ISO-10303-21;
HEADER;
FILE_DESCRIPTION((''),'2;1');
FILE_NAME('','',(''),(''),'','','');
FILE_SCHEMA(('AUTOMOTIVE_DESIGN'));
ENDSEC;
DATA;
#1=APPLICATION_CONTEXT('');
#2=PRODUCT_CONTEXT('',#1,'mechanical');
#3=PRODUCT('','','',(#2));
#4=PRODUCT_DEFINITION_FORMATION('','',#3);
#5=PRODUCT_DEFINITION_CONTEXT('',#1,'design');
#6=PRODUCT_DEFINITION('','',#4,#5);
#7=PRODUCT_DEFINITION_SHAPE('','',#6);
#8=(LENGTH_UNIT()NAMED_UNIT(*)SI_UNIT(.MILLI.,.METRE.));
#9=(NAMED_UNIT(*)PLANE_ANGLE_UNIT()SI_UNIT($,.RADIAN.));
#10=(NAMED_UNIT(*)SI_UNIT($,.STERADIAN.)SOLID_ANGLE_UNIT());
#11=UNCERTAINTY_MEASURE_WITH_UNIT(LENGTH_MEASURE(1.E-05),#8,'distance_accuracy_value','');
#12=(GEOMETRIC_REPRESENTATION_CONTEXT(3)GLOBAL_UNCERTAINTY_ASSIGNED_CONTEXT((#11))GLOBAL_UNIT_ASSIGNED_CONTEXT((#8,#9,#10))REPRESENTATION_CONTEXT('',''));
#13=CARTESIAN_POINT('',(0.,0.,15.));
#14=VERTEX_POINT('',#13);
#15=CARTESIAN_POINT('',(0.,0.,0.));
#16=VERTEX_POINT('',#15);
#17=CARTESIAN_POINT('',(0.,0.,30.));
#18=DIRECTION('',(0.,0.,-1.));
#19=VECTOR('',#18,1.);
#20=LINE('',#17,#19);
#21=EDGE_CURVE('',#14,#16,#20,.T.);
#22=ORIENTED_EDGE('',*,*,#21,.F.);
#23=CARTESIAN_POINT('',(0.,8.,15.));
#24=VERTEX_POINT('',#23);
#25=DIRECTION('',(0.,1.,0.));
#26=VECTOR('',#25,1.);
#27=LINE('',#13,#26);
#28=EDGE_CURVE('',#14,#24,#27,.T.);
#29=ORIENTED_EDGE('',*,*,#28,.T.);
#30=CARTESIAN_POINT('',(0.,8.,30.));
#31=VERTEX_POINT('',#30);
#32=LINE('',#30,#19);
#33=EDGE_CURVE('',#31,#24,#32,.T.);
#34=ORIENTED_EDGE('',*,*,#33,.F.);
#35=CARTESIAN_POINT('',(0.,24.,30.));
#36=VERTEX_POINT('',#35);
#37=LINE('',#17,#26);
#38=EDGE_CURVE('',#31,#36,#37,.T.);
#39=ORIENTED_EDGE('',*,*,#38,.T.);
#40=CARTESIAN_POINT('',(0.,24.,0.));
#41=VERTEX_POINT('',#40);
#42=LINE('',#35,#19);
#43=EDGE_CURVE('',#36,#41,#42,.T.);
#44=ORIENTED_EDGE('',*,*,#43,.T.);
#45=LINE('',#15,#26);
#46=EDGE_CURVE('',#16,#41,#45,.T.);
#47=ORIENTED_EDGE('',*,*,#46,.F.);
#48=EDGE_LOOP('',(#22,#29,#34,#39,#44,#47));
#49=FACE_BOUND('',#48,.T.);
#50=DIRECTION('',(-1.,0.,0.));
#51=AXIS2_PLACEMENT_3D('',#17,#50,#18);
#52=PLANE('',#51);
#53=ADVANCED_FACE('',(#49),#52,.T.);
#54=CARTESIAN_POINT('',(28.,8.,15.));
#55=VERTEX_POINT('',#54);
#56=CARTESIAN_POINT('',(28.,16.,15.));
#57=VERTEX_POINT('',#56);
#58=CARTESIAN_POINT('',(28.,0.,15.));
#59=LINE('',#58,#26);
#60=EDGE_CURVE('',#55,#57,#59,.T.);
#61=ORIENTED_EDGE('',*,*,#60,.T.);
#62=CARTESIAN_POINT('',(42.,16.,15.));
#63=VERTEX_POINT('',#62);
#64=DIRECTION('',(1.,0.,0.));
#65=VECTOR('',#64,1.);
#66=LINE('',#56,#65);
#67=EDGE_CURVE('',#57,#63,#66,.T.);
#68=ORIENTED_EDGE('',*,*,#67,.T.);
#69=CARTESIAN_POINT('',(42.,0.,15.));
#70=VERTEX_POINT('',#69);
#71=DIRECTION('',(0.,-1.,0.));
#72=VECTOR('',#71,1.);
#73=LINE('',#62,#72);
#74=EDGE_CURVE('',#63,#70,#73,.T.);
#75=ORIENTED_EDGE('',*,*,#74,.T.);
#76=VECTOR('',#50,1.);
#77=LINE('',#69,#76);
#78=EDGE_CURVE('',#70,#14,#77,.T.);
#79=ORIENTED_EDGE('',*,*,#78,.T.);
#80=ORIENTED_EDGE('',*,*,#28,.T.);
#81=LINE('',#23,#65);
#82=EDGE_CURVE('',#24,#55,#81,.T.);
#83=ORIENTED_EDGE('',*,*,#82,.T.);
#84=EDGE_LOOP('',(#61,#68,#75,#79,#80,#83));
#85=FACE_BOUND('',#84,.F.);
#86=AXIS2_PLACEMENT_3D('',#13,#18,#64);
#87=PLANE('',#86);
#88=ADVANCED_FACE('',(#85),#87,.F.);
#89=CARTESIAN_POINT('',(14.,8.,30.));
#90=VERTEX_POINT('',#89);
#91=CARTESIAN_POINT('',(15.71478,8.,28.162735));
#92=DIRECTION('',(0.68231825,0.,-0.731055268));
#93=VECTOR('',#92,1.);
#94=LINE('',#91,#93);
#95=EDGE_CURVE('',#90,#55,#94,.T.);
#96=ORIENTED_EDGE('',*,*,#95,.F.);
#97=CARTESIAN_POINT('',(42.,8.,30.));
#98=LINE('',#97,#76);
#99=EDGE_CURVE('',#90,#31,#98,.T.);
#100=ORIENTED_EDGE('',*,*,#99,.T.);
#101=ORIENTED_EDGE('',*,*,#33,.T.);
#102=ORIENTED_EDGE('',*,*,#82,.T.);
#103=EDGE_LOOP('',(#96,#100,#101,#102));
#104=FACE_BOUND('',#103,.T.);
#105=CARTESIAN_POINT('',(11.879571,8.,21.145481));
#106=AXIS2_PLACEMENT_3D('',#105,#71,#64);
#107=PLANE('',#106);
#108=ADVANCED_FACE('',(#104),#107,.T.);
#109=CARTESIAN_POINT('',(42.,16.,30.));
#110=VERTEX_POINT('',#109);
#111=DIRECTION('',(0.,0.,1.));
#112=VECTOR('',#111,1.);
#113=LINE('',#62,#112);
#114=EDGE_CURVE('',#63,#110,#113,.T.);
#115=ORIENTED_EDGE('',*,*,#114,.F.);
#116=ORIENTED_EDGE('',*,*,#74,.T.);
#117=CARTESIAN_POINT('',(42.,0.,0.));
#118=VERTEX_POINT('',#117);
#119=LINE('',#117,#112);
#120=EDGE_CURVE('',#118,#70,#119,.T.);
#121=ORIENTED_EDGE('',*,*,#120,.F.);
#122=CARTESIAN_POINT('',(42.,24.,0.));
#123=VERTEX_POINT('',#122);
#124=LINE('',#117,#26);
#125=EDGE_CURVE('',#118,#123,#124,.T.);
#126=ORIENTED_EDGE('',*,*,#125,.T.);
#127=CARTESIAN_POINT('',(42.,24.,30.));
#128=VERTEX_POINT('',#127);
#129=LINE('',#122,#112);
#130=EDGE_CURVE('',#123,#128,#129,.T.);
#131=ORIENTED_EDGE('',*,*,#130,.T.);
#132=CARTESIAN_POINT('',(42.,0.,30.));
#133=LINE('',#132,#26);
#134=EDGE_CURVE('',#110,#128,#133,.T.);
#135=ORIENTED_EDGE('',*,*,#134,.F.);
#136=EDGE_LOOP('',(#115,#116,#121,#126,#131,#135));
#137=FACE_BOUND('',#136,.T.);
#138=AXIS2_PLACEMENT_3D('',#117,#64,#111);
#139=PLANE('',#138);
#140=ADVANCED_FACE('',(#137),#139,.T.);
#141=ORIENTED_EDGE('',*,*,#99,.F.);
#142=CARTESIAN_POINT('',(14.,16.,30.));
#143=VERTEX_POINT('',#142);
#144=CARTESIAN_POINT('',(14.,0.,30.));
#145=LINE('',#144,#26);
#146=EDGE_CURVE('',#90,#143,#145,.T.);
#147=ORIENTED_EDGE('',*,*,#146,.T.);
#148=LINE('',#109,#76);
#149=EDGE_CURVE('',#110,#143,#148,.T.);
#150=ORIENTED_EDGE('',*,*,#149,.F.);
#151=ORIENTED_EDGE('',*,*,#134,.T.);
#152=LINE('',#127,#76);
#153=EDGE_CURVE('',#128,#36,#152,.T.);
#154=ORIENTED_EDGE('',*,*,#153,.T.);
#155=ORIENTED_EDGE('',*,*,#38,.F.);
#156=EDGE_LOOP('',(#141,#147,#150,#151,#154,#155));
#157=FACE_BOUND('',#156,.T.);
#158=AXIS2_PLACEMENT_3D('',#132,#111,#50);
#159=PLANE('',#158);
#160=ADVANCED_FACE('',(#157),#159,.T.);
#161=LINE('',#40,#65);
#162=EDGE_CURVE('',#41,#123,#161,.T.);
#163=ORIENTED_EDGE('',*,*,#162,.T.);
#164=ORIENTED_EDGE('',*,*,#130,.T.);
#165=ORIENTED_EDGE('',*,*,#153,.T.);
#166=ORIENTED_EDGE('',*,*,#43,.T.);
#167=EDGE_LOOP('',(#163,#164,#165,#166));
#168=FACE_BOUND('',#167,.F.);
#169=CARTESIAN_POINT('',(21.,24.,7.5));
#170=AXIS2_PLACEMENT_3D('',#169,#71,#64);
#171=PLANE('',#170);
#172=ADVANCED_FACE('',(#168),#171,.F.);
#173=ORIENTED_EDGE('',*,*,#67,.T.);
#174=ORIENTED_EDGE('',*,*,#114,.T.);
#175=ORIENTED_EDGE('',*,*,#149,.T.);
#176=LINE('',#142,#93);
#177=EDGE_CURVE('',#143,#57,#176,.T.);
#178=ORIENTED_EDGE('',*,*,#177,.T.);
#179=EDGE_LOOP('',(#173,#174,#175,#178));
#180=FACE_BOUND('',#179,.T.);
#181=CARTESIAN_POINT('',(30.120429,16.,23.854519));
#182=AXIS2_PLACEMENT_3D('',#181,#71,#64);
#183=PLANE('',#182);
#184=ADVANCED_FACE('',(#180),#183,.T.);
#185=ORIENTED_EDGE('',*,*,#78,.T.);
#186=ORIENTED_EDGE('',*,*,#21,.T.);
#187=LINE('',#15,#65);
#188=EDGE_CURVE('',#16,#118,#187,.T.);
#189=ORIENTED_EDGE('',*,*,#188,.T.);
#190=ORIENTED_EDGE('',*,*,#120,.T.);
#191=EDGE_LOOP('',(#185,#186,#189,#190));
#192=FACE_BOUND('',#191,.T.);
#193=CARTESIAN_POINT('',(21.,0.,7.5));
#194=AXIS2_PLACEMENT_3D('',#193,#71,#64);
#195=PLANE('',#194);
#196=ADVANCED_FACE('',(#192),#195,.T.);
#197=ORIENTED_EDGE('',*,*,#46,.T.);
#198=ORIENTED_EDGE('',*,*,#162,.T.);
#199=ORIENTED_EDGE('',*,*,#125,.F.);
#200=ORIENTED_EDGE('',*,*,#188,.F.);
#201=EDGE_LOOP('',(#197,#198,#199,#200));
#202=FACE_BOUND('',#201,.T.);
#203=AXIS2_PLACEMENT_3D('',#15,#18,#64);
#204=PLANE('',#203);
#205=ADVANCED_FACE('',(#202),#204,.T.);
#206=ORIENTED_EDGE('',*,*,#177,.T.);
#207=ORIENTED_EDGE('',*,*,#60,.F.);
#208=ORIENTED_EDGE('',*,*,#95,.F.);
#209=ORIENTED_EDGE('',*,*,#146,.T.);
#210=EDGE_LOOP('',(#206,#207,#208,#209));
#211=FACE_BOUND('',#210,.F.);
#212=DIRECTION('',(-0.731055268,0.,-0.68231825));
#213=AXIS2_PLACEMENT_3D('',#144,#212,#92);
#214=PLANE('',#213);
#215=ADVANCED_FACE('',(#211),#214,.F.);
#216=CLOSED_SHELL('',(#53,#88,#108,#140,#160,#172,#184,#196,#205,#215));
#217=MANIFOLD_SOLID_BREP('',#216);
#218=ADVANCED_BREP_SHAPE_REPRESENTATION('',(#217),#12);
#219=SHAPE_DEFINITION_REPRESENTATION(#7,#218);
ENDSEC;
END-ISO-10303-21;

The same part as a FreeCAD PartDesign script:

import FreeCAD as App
import Part
import Sketcher
from FreeCAD import Vector


def add_polygon(sketch, points):
    """Adds a closed chain of lines whose ends are joined by coincident constraints."""
    first, n = sketch.GeometryCount, len(points)
    for a, b in zip(points, points[1:] + points[:1]):
        sketch.addGeometry(Part.LineSegment(App.Vector(*a, 0), App.Vector(*b, 0)), False)
    for i in range(n):
        sketch.addConstraint(Sketcher.Constraint("Coincident", first + i, 2, first + (i + 1) % n, 1))

doc = App.newDocument("Part")
body = doc.addObject("PartDesign::Body", "Body")

sketch1 = body.newObject("Sketcher::SketchObject", "Sketch")
sketch1.AttachmentSupport = (doc.getObject("XZ_Plane"), [""])
sketch1.MapMode = "FlatFace"
add_polygon(sketch1, [(0, 0), (42, 0), (42, 30), (0, 30)])
sketch1.addConstraint(Sketcher.Constraint("Horizontal", 0))
sketch1.addConstraint(Sketcher.Constraint("Vertical", 1))
sketch1.addConstraint(Sketcher.Constraint("Horizontal", 2))
sketch1.addConstraint(Sketcher.Constraint("Vertical", 3))
sketch1.addConstraint(Sketcher.Constraint("Coincident", 3, 2, -1, 1))
sketch1.addConstraint(Sketcher.Constraint("DistanceX", 0, 1, 0, 2, 42.0))
sketch1.addConstraint(Sketcher.Constraint("DistanceY", 1, 1, 1, 2, 30.0))
pad1 = body.newObject("PartDesign::Pad", "Pad")
pad1.Profile = sketch1
pad1.Length = 24
pad1.Reversed = True

sketch2 = body.newObject("Sketcher::SketchObject", "Sketch001")
sketch2.AttachmentSupport = (doc.getObject("XZ_Plane"), [""])
sketch2.MapMode = "FlatFace"
add_polygon(sketch2, [(0, 30), (0, 15), (42, 15), (42, 30)])
sketch2.addConstraint(Sketcher.Constraint("Vertical", 0))
sketch2.addConstraint(Sketcher.Constraint("Horizontal", 1))
sketch2.addConstraint(Sketcher.Constraint("Vertical", 2))
sketch2.addConstraint(Sketcher.Constraint("Horizontal", 3))
sketch2.addConstraint(Sketcher.Constraint("PointOnObject", 0, 2, -2))
sketch2.addConstraint(Sketcher.Constraint("DistanceX", 1, 1, 1, 2, 42.0))
sketch2.addConstraint(Sketcher.Constraint("DistanceY", 0, 2, 0, 1, 15.0))
sketch2.addConstraint(Sketcher.Constraint("DistanceY", -1, 1, 0, 2, 15.0))
pocket1 = body.newObject("PartDesign::Pocket", "Pocket")
pocket1.Profile = sketch2
pocket1.Length = 8

sketch3 = body.newObject("Sketcher::SketchObject", "Sketch002")
sketch3.AttachmentSupport = (doc.getObject("XZ_Plane"), [""])
sketch3.MapMode = "FlatFace"
add_polygon(sketch3, [(28, 15), (42, 15), (42, 30), (14, 30)])
sketch3.addConstraint(Sketcher.Constraint("Horizontal", 0))
sketch3.addConstraint(Sketcher.Constraint("Vertical", 1))
sketch3.addConstraint(Sketcher.Constraint("Horizontal", 2))
sketch3.addConstraint(Sketcher.Constraint("DistanceX", 0, 1, 0, 2, 14.0))
sketch3.addConstraint(Sketcher.Constraint("DistanceX", 2, 2, 2, 1, 28.0))
sketch3.addConstraint(Sketcher.Constraint("DistanceY", 1, 1, 1, 2, 15.0))
sketch3.addConstraint(Sketcher.Constraint("DistanceX", -1, 1, 0, 2, 42.0))
sketch3.addConstraint(Sketcher.Constraint("DistanceY", -1, 1, 0, 2, 15.0))
pocket2 = body.newObject("PartDesign::Pocket", "Pocket001")
pocket2.Profile = sketch3
pocket2.Length = 16

doc.recompute()
